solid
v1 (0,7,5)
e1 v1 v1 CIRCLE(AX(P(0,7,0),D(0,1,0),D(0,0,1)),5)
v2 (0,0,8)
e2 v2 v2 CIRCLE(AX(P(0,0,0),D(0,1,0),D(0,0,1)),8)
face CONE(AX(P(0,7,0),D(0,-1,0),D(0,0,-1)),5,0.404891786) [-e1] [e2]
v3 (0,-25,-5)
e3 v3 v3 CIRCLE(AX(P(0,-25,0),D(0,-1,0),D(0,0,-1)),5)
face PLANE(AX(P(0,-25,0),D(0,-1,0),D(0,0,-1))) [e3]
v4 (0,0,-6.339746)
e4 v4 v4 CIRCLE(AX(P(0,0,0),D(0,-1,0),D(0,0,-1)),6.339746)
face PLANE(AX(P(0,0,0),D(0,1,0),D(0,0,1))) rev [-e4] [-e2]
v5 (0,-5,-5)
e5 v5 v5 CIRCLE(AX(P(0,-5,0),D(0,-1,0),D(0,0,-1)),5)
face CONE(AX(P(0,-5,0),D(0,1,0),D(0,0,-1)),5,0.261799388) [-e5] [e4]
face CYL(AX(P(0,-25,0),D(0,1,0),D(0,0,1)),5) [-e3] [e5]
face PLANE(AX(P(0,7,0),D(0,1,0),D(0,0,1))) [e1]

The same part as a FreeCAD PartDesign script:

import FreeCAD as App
import Part
import Sketcher
from FreeCAD import Vector

doc = App.newDocument("Part")
body = doc.addObject("PartDesign::Body", "Body")

sketch1 = body.newObject("Sketcher::SketchObject", "Sketch")
sketch1.AttachmentSupport = (doc.getObject("XZ_Plane"), [""])
sketch1.MapMode = "FlatFace"
sketch1.AttachmentOffset = App.Placement(Vector(0, 0, -7), App.Rotation())
sketch1.addGeometry(Part.Circle(Vector(0, 0, 0), Vector(0, 0, 1), 5), False)
sketch1.addConstraint([
    Sketcher.Constraint("Coincident", 0, 3, -1, 1),
    Sketcher.Constraint("Diameter", 0, 10.0),
])

sketch2 = body.newObject("Sketcher::SketchObject", "Sketch001")
sketch2.AttachmentSupport = (doc.getObject("XZ_Plane"), [""])
sketch2.MapMode = "FlatFace"
sketch2.addGeometry(Part.Circle(Vector(0, 0, 0), Vector(0, 0, 1), 8), False)
sketch2.addConstraint([
    Sketcher.Constraint("Coincident", 0, 3, -1, 1),
    Sketcher.Constraint("Diameter", 0, 16.0),
])

additiveloft = body.newObject("PartDesign::AdditiveLoft", "AdditiveLoft")
additiveloft.Profile = sketch1
additiveloft.Sections = [sketch2]

sketch3 = body.newObject("Sketcher::SketchObject", "Sketch002")
sketch3.AttachmentSupport = (doc.getObject("XZ_Plane"), [""])
sketch3.MapMode = "FlatFace"
sketch3.AttachmentOffset = App.Placement(Vector(0, 0, 5), App.Rotation())
sketch3.addGeometry(Part.Circle(Vector(0, 0, 0), Vector(0, 0, 1), 5), False)
sketch3.addConstraint([
    Sketcher.Constraint("Coincident", 0, 3, -1, 1),
    Sketcher.Constraint("Diameter", 0, 10.0),
])
pad1 = body.newObject("PartDesign::Pad", "Pad")
pad1.Profile = sketch3
pad1.Length = 5
pad1.Reversed = True
pad1.TaperAngle = 15

sketch4 = body.newObject("Sketcher::SketchObject", "Sketch003")
sketch4.AttachmentSupport = (doc.getObject("XZ_Plane"), [""])
sketch4.MapMode = "FlatFace"
sketch4.AttachmentOffset = App.Placement(Vector(0, 0, 5), App.Rotation())
sketch4.addGeometry(Part.Circle(Vector(0, 0, 0), Vector(0, 0, 1), 5), False)
sketch4.addConstraint([
    Sketcher.Constraint("Coincident", 0, 3, -1, 1),
    Sketcher.Constraint("Diameter", 0, 10.0),
])
pad2 = body.newObject("PartDesign::Pad", "Pad001")
pad2.Profile = sketch4
pad2.Length = 20

doc.recompute()
